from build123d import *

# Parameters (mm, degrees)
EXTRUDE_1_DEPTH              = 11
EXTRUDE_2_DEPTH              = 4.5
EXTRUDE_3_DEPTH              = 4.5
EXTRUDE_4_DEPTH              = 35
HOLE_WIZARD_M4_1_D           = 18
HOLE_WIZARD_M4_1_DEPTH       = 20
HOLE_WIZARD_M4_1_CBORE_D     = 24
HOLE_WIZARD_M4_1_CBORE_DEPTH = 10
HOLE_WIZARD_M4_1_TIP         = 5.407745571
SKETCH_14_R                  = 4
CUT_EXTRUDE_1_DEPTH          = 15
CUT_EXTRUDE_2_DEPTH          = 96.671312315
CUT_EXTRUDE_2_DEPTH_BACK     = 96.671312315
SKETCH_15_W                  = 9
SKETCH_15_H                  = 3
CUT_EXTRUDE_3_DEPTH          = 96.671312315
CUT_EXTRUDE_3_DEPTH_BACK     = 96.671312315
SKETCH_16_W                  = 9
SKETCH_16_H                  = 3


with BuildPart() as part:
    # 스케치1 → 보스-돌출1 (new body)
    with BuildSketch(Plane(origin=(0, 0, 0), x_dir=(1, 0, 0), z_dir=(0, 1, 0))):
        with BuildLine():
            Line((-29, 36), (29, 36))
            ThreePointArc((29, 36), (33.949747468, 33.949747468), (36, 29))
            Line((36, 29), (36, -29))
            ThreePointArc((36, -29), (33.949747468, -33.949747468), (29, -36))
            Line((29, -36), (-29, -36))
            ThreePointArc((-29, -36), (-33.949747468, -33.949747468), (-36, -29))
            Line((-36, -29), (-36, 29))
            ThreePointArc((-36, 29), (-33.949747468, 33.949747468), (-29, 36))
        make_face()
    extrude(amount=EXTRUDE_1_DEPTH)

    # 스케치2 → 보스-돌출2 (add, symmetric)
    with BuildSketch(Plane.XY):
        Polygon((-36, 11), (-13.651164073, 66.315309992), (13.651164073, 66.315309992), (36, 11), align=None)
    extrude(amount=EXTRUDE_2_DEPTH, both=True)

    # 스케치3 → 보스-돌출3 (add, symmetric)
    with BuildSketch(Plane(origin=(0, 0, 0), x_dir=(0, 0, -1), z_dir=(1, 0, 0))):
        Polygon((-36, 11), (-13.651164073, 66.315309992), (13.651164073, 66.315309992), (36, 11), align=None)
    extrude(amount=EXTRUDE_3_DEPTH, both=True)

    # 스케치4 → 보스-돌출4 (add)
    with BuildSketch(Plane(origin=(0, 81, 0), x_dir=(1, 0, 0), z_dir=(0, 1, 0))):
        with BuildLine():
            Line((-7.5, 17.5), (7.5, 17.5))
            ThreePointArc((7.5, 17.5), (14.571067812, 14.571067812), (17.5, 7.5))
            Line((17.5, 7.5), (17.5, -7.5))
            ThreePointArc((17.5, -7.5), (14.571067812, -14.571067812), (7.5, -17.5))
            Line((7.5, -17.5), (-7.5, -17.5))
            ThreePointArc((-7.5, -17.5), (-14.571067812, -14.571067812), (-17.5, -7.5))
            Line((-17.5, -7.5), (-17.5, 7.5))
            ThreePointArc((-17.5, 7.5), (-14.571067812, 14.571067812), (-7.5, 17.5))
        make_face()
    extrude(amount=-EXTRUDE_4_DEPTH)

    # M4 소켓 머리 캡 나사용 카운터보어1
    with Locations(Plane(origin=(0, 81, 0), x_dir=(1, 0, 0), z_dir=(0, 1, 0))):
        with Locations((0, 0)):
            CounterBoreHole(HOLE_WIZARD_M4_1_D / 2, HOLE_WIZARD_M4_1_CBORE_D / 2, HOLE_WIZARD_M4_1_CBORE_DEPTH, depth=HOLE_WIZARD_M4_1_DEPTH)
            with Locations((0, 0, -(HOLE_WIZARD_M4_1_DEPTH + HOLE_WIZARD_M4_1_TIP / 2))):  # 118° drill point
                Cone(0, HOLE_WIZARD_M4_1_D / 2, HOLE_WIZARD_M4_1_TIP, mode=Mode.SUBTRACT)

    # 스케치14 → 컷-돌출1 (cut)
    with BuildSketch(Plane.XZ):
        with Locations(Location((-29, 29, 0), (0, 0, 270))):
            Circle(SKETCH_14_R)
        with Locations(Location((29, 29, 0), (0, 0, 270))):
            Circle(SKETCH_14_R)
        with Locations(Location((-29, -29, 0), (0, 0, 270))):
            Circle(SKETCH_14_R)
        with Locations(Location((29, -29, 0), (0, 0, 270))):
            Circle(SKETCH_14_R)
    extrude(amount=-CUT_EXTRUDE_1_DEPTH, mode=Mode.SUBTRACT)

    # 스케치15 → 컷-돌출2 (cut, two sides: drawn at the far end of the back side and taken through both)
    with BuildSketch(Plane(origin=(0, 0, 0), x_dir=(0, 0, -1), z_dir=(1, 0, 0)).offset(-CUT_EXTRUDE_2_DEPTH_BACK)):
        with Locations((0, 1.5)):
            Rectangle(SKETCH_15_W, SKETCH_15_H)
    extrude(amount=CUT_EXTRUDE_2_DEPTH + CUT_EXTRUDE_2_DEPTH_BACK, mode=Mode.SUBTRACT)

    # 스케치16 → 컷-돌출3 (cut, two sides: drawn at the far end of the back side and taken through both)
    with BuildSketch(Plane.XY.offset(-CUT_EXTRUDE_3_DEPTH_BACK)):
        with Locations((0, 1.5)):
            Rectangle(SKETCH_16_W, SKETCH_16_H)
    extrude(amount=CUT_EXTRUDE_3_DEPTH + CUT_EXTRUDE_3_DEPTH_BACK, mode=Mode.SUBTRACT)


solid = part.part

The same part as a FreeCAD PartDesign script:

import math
import FreeCAD as App
import Part
import Sketcher
Q = App.Units.Quantity


def add_polygon(sketch, points):
    """Adds a closed chain of lines whose ends are joined by coincident constraints."""
    first, n = sketch.GeometryCount, len(points)
    for a, b in zip(points, points[1:] + points[:1]):
        sketch.addGeometry(Part.LineSegment(App.Vector(*a, 0), App.Vector(*b, 0)), False)
    for i in range(n):
        sketch.addConstraint(Sketcher.Constraint("Coincident", first + i, 2, first + (i + 1) % n, 1))

doc = App.newDocument("Part")
body = doc.addObject("PartDesign::Body", "Body")

# Sketch on XZ plane
sketch1 = body.newObject("Sketcher::SketchObject", "Sketch")
sketch1.AttachmentSupport = (doc.getObject("XZ_Plane"), [""])
sketch1.MapMode = "FlatFace"
sketch1.addGeometry([
    Part.LineSegment(App.Vector(29, -36, 0), App.Vector(-29, -36, 0)),  # 0
    Part.ArcOfCircle(Part.Circle(App.Vector(-29, -29, 0), App.Vector(0, 0, 1), 7), math.radians(-180), math.radians(-90)),  # 1
    Part.LineSegment(App.Vector(-36, -29, 0), App.Vector(-36, 29, 0)),  # 2
    Part.ArcOfCircle(Part.Circle(App.Vector(-29, 29, 0), App.Vector(0, 0, 1), 7), math.radians(90), math.radians(180)),  # 3
    Part.LineSegment(App.Vector(-29, 36, 0), App.Vector(29, 36, 0)),  # 4
    Part.ArcOfCircle(Part.Circle(App.Vector(29, 29, 0), App.Vector(0, 0, 1), 7), math.radians(0), math.radians(90)),  # 5
    Part.LineSegment(App.Vector(36, 29, 0), App.Vector(36, -29, 0)),  # 6
    Part.ArcOfCircle(Part.Circle(App.Vector(29, -29, 0), App.Vector(0, 0, 1), 7), math.radians(-90), math.radians(0)),  # 7
], False)
sketch1.addConstraint([
    Sketcher.Constraint("Tangent", 0, 2, 1, 2),
    Sketcher.Constraint("Tangent", 1, 1, 2, 1),
    Sketcher.Constraint("Tangent", 2, 2, 3, 2),
    Sketcher.Constraint("Tangent", 3, 1, 4, 1),
    Sketcher.Constraint("Tangent", 4, 2, 5, 2),
    Sketcher.Constraint("Tangent", 5, 1, 6, 1),
    Sketcher.Constraint("Tangent", 6, 2, 7, 2),
    Sketcher.Constraint("Tangent", 7, 1, 0, 1),
    Sketcher.Constraint("Horizontal", 0),
    Sketcher.Constraint("Vertical", 2),
    Sketcher.Constraint("Horizontal", 4),
    Sketcher.Constraint("Vertical", 6),
    Sketcher.Constraint("Equal", 1, 3),
    Sketcher.Constraint("Equal", 3, 5),
    Sketcher.Constraint("Equal", 5, 7),
    Sketcher.Constraint("Symmetric", 1, 3, 5, 3, -1, 1),
    Sketcher.Constraint("Equal", 4, 2),
    Sketcher.Constraint("Radius", 1, 7.0),
    Sketcher.Constraint("DistanceX", 0, 2, 0, 1, 58.0),
])
pad1 = body.newObject("PartDesign::Pad", "Pad")
pad1.Profile = sketch1
pad1.Length = 11
pad1.Reversed = True

# Sketch on XY plane
sketch2 = body.newObject("Sketcher::SketchObject", "Sketch001")
sketch2.AttachmentSupport = (doc.getObject("XY_Plane"), [""])
sketch2.MapMode = "FlatFace"
add_polygon(sketch2, [(-13.651164, 66.31531), (-36, 11), (36, 11), (13.651164, 66.31531)])  # lines 0-3
sketch2.addConstraint([
    Sketcher.Constraint("Horizontal", 1),
    Sketcher.Constraint("Horizontal", 3),
    Sketcher.Constraint("Equal", 0, 2),
    Sketcher.Constraint("DistanceX", 1, 1, 1, 2, 72.0),
    Sketcher.Constraint("Angle", 0, Q("-112 deg")),
    Sketcher.Constraint("DistanceX", 0, 2, -1, 1, 36.0),
    Sketcher.Constraint("DistanceY", -1, 1, 0, 2, 11.0),
    Sketcher.Constraint("DistanceX", 3, 2, 3, 1, 27.302328),
])
pad2 = body.newObject("PartDesign::Pad", "Pad001")
pad2.Profile = sketch2
pad2.Length = 9
pad2.Midplane = True

# Sketch on YZ plane
sketch3 = body.newObject("Sketcher::SketchObject", "Sketch002")
sketch3.AttachmentSupport = (doc.getObject("YZ_Plane"), [""])
sketch3.MapMode = "FlatFace"
add_polygon(sketch3, [(66.31531, 13.651164), (11, 36), (11, -36), (66.31531, -13.651164)])  # lines 0-3
sketch3.addConstraint([
    Sketcher.Constraint("Vertical", 1),
    Sketcher.Constraint("Vertical", 3),
    Sketcher.Constraint("Equal", 0, 2),
    Sketcher.Constraint("DistanceY", 1, 2, 1, 1, 72.0),
    Sketcher.Constraint("Angle", 0, Q("158 deg")),
    Sketcher.Constraint("DistanceX", -1, 1, 0, 2, 11.0),
    Sketcher.Constraint("DistanceY", -1, 1, 0, 2, 36.0),
    Sketcher.Constraint("DistanceY", 3, 1, 3, 2, 27.302328),
])
pad3 = body.newObject("PartDesign::Pad", "Pad002")
pad3.Profile = sketch3
pad3.Length = 9
pad3.Midplane = True

# Sketch on XZ plane
sketch4 = body.newObject("Sketcher::SketchObject", "Sketch003")
sketch4.AttachmentSupport = (doc.getObject("XZ_Plane"), [""])
sketch4.MapMode = "FlatFace"
sketch4.AttachmentOffset = App.Placement(App.Vector(0, 0, -81), App.Rotation())
sketch4.addGeometry([
    Part.LineSegment(App.Vector(7.5, -17.5, 0), App.Vector(-7.5, -17.5, 0)),  # 0
    Part.ArcOfCircle(Part.Circle(App.Vector(-7.5, -7.5, 0), App.Vector(0, 0, 1), 10), math.radians(180), math.radians(270)),  # 1
    Part.LineSegment(App.Vector(-17.5, -7.5, 0), App.Vector(-17.5, 7.5, 0)),  # 2
    Part.ArcOfCircle(Part.Circle(App.Vector(-7.5, 7.5, 0), App.Vector(0, 0, 1), 10), math.radians(90), math.radians(180)),  # 3
    Part.LineSegment(App.Vector(-7.5, 17.5, 0), App.Vector(7.5, 17.5, 0)),  # 4
    Part.ArcOfCircle(Part.Circle(App.Vector(7.5, 7.5, 0), App.Vector(0, 0, 1), 10), math.radians(0), math.radians(90)),  # 5
    Part.LineSegment(App.Vector(17.5, 7.5, 0), App.Vector(17.5, -7.5, 0)),  # 6
    Part.ArcOfCircle(Part.Circle(App.Vector(7.5, -7.5, 0), App.Vector(0, 0, 1), 10), math.radians(-90), math.radians(0)),  # 7
], False)
sketch4.addConstraint([
    Sketcher.Constraint("Tangent", 0, 2, 1, 2),
    Sketcher.Constraint("Tangent", 1, 1, 2, 1),
    Sketcher.Constraint("Tangent", 2, 2, 3, 2),
    Sketcher.Constraint("Tangent", 3, 1, 4, 1),
    Sketcher.Constraint("Tangent", 4, 2, 5, 2),
    Sketcher.Constraint("Tangent", 5, 1, 6, 1),
    Sketcher.Constraint("Tangent", 6, 2, 7, 2),
    Sketcher.Constraint("Tangent", 7, 1, 0, 1),
    Sketcher.Constraint("Horizontal", 0),
    Sketcher.Constraint("Vertical", 2),
    Sketcher.Constraint("Horizontal", 4),
    Sketcher.Constraint("Vertical", 6),
    Sketcher.Constraint("Equal", 1, 3),
    Sketcher.Constraint("Equal", 3, 5),
    Sketcher.Constraint("Equal", 5, 7),
    Sketcher.Constraint("Symmetric", 1, 3, 5, 3, -1, 1),
    Sketcher.Constraint("Equal", 4, 2),
    Sketcher.Constraint("Radius", 1, 10.0),
    Sketcher.Constraint("DistanceX", 0, 2, 0, 1, 15.0),
])
pad4 = body.newObject("PartDesign::Pad", "Pad003")
pad4.Profile = sketch4
pad4.Length = 35

# Sketch on XZ plane
sketch5 = body.newObject("Sketcher::SketchObject", "Sketch004")
sketch5.AttachmentSupport = (doc.getObject("XZ_Plane"), [""])
sketch5.MapMode = "FlatFace"
sketch5.AttachmentOffset = App.Placement(App.Vector(0, 0, -81), App.Rotation())
sketch5.addGeometry(Part.Circle(App.Vector(0, 0, 0), App.Vector(0, 0, 1), 9), False)
sketch5.addConstraint([
    Sketcher.Constraint("Coincident", 0, 3, -1, 1),
    Sketcher.Constraint("Diameter", 0, 18.0),
])
doc.recompute()
hole = body.newObject("PartDesign::Hole", "Hole")
hole.Profile = sketch5
hole.ThreadType = "None"
hole.Diameter = 18
hole.DepthType = "Dimension"
hole.Depth = 20
hole.DrillPoint = "Angled"
hole.DrillPointAngle = 118
hole.HoleCutType = "Counterbore"
hole.HoleCutDiameter = 24
hole.HoleCutDepth = 10
hole.Reversed = True

# Sketch on XZ plane
sketch6 = body.newObject("Sketcher::SketchObject", "Sketch005")
sketch6.AttachmentSupport = (doc.getObject("XZ_Plane"), [""])
sketch6.MapMode = "FlatFace"
sketch6.addGeometry([
    Part.Circle(App.Vector(-29, 29, 0), App.Vector(0, 0, 1), 4),
    Part.Circle(App.Vector(29, 29, 0), App.Vector(0, 0, 1), 4),
    Part.Circle(App.Vector(-29, -29, 0), App.Vector(0, 0, 1), 4),
    Part.Circle(App.Vector(29, -29, 0), App.Vector(0, 0, 1), 4),
], False)
sketch6.addConstraint([
    Sketcher.Constraint("Equal", 0, 1),
    Sketcher.Constraint("Equal", 1, 2),
    Sketcher.Constraint("Equal", 2, 3),
    Sketcher.Constraint("Symmetric", 1, 3, 2, 3, -1, 1),
    Sketcher.Constraint("Symmetric", 0, 3, 3, 3, -1, 1),
    Sketcher.Constraint("Symmetric", 0, 3, 1, 3, -2),
    Sketcher.Constraint("Diameter", 0, 8.0),
    Sketcher.Constraint("DistanceX", 0, 3, -1, 1, 29.0),
    Sketcher.Constraint("DistanceY", -1, 1, 0, 3, 29.0),
])
pocket1 = body.newObject("PartDesign::Pocket", "Pocket")
pocket1.Profile = sketch6
pocket1.Length = 15

# Sketch on YZ plane
sketch7 = body.newObject("Sketcher::SketchObject", "Sketch006")
sketch7.AttachmentSupport = (doc.getObject("YZ_Plane"), [""])
sketch7.MapMode = "FlatFace"
add_polygon(sketch7, [(3, 4.5), (0, 4.5), (0, -4.5), (3, -4.5)])  # lines 0-3
sketch7.addConstraint([
    Sketcher.Constraint("Horizontal", 0),
    Sketcher.Constraint("Vertical", 1),
    Sketcher.Constraint("Horizontal", 2),
    Sketcher.Constraint("Vertical", 3),
    Sketcher.Constraint("Symmetric", 0, 2, 1, 2, -1, 1),
    Sketcher.Constraint("DistanceX", 0, 2, 0, 1, 3.0),
    Sketcher.Constraint("DistanceY", 1, 2, 1, 1, 9.0),
])
pocket2 = body.newObject("PartDesign::Pocket", "Pocket001")
pocket2.Profile = sketch7
pocket2.Type = "ThroughAll"
pocket2.Midplane = True

# Sketch on XY plane
sketch8 = body.newObject("Sketcher::SketchObject", "Sketch007")
sketch8.AttachmentSupport = (doc.getObject("XY_Plane"), [""])
sketch8.MapMode = "FlatFace"
add_polygon(sketch8, [(-4.5, 3), (-4.5, 0), (4.5, 0), (4.5, 3)])  # lines 0-3
sketch8.addConstraint([
    Sketcher.Constraint("Vertical", 0),
    Sketcher.Constraint("Horizontal", 1),
    Sketcher.Constraint("Vertical", 2),
    Sketcher.Constraint("Horizontal", 3),
    Sketcher.Constraint("Symmetric", 0, 2, 1, 2, -1, 1),
    Sketcher.Constraint("DistanceX", 1, 1, 1, 2, 9.0),
    Sketcher.Constraint("DistanceY", 0, 2, 0, 1, 3.0),
])
pocket3 = body.newObject("PartDesign::Pocket", "Pocket002")
pocket3.Profile = sketch8
pocket3.Type = "ThroughAll"
pocket3.Midplane = True

doc.recompute()
